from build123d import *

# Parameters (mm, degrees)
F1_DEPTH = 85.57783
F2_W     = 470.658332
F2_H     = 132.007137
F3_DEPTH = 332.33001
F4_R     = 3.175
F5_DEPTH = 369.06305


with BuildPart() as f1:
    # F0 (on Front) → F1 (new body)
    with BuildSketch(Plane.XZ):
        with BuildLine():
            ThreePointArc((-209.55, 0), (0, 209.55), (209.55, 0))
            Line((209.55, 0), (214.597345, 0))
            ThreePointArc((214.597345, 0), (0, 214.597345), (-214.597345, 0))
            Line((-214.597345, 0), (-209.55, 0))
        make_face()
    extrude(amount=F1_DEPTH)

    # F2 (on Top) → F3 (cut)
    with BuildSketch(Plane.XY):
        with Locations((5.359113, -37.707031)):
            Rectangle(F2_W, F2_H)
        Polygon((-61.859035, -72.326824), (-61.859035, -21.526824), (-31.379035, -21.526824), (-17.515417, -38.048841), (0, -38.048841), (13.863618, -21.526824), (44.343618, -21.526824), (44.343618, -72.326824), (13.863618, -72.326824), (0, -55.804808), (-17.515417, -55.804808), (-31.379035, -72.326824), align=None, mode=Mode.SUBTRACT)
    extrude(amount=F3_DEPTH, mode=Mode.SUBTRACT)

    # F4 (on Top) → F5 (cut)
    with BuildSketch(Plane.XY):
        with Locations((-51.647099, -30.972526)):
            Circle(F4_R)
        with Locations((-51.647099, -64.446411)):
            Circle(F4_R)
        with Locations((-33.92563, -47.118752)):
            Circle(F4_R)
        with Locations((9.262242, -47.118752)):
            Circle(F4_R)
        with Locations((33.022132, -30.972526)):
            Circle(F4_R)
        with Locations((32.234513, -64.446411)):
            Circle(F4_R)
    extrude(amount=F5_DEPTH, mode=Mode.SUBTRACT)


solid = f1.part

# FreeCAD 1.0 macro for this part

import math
import FreeCAD as App
import Part
import Sketcher
Q = App.Units.Quantity

doc = App.newDocument("Part")
body = doc.addObject("PartDesign::Body", "Body")

# Sketch on XZ plane
sketch1 = body.newObject("Sketcher::SketchObject", "Sketch")
sketch1.AttachmentSupport = (doc.getObject("XZ_Plane"), [""])
sketch1.MapMode = "FlatFace"
sketch1.addGeometry(Part.ArcOfCircle(Part.Circle(App.Vector(0, 0, 0), App.Vector(0, 0, 1), 210), math.radians(0), math.radians(180)), False)
sketch1.addGeometry(Part.LineSegment(App.Vector(210, 0, 0), App.Vector(215, 0, 0)), False)
sketch1.addGeometry(Part.ArcOfCircle(Part.Circle(App.Vector(0, 0, 0), App.Vector(0, 0, 1), 215), math.radians(0), math.radians(180)), False)
sketch1.addGeometry(Part.LineSegment(App.Vector(-215, 0, 0), App.Vector(-210, 0, 0)), False)
sketch1.addConstraint(Sketcher.Constraint("Coincident", 0, 1, 1, 1))
sketch1.addConstraint(Sketcher.Constraint("Coincident", 1, 2, 2, 1))
sketch1.addConstraint(Sketcher.Constraint("Coincident", 2, 2, 3, 1))
sketch1.addConstraint(Sketcher.Constraint("Coincident", 3, 2, 0, 2))
sketch1.addConstraint(Sketcher.Constraint("Horizontal", 1))
sketch1.addConstraint(Sketcher.Constraint("Horizontal", 3))
sketch1.addConstraint(Sketcher.Constraint("Coincident", 0, 3, -1, 1))
sketch1.addConstraint(Sketcher.Constraint("Coincident", 2, 3, -1, 1))
sketch1.addConstraint(Sketcher.Constraint("PointOnObject", 0, 1, -1))
sketch1.addConstraint(Sketcher.Constraint("PointOnObject", 2, 2, -1))
sketch1.addConstraint(Sketcher.Constraint("Radius", 0, Q("8.25 in")))
sketch1.addConstraint(Sketcher.Constraint("Radius", 2, Q("214.597345 mm")))
pad1 = body.newObject("PartDesign::Pad", "Pad")
pad1.Profile = sketch1
pad1.Length = 85.57783

# Sketch on XY plane
sketch2 = body.newObject("Sketcher::SketchObject", "Sketch001")
sketch2.AttachmentSupport = (doc.getObject("XY_Plane"), [""])
sketch2.MapMode = "FlatFace"
sketch2.addGeometry(Part.LineSegment(App.Vector(-230, 28, 0), App.Vector(-230, -104, 0)), False)
sketch2.addGeometry(Part.LineSegment(App.Vector(-230, -104, 0), App.Vector(241, -104, 0)), False)
sketch2.addGeometry(Part.LineSegment(App.Vector(241, -104, 0), App.Vector(241, 28, 0)), False)
sketch2.addGeometry(Part.LineSegment(App.Vector(241, 28, 0), App.Vector(-230, 28, 0)), False)
sketch2.addGeometry(Part.LineSegment(App.Vector(-31, -72, 0), App.Vector(-62, -72, 0)), False)
sketch2.addGeometry(Part.LineSegment(App.Vector(-62, -72, 0), App.Vector(-62, -22, 0)), False)
sketch2.addGeometry(Part.LineSegment(App.Vector(-62, -22, 0), App.Vector(-31, -22, 0)), False)
sketch2.addGeometry(Part.LineSegment(App.Vector(-31, -22, 0), App.Vector(-18, -38, 0)), False)
sketch2.addGeometry(Part.LineSegment(App.Vector(-18, -38, 0), App.Vector(0, -38, 0)), False)
sketch2.addGeometry(Part.LineSegment(App.Vector(0, -38, 0), App.Vector(14, -22, 0)), False)
sketch2.addGeometry(Part.LineSegment(App.Vector(14, -22, 0), App.Vector(44, -22, 0)), False)
sketch2.addGeometry(Part.LineSegment(App.Vector(44, -22, 0), App.Vector(44, -72, 0)), False)
sketch2.addGeometry(Part.LineSegment(App.Vector(44, -72, 0), App.Vector(14, -72, 0)), False)
sketch2.addGeometry(Part.LineSegment(App.Vector(14, -72, 0), App.Vector(0, -56, 0)), False)
sketch2.addGeometry(Part.LineSegment(App.Vector(0, -56, 0), App.Vector(-18, -56, 0)), False)
sketch2.addGeometry(Part.LineSegment(App.Vector(-18, -56, 0), App.Vector(-31, -72, 0)), False)
sketch2.addConstraint(Sketcher.Constraint("Coincident", 0, 2, 1, 1))
sketch2.addConstraint(Sketcher.Constraint("Coincident", 1, 2, 2, 1))
sketch2.addConstraint(Sketcher.Constraint("Coincident", 2, 2, 3, 1))
sketch2.addConstraint(Sketcher.Constraint("Coincident", 3, 2, 0, 1))
sketch2.addConstraint(Sketcher.Constraint("Coincident", 4, 2, 5, 1))
sketch2.addConstraint(Sketcher.Constraint("Coincident", 5, 2, 6, 1))
sketch2.addConstraint(Sketcher.Constraint("Coincident", 6, 2, 7, 1))
sketch2.addConstraint(Sketcher.Constraint("Coincident", 7, 2, 8, 1))
sketch2.addConstraint(Sketcher.Constraint("Coincident", 8, 2, 9, 1))
sketch2.addConstraint(Sketcher.Constraint("Coincident", 9, 2, 10, 1))
sketch2.addConstraint(Sketcher.Constraint("Coincident", 10, 2, 11, 1))
sketch2.addConstraint(Sketcher.Constraint("Coincident", 11, 2, 12, 1))
sketch2.addConstraint(Sketcher.Constraint("Coincident", 12, 2, 13, 1))
sketch2.addConstraint(Sketcher.Constraint("Coincident", 13, 2, 14, 1))
sketch2.addConstraint(Sketcher.Constraint("Coincident", 14, 2, 15, 1))
sketch2.addConstraint(Sketcher.Constraint("Coincident", 15, 2, 4, 1))
sketch2.addConstraint(Sketcher.Constraint("Vertical", 0))
sketch2.addConstraint(Sketcher.Constraint("Horizontal", 1))
sketch2.addConstraint(Sketcher.Constraint("Vertical", 2))
sketch2.addConstraint(Sketcher.Constraint("Horizontal", 3))
sketch2.addConstraint(Sketcher.Constraint("Horizontal", 4))
sketch2.addConstraint(Sketcher.Constraint("Vertical", 5))
sketch2.addConstraint(Sketcher.Constraint("Horizontal", 6))
sketch2.addConstraint(Sketcher.Constraint("Horizontal", 8))
sketch2.addConstraint(Sketcher.Constraint("Horizontal", 10))
sketch2.addConstraint(Sketcher.Constraint("Vertical", 11))
sketch2.addConstraint(Sketcher.Constraint("Horizontal", 12))
sketch2.addConstraint(Sketcher.Constraint("Horizontal", 14))
sketch2.addConstraint(Sketcher.Constraint("PointOnObject", 8, 2, -2))
sketch2.addConstraint(Sketcher.Constraint("PointOnObject", 13, 2, -2))
sketch2.addConstraint(Sketcher.Constraint("Parallel", 7, 13))
sketch2.addConstraint(Sketcher.Constraint("Parallel", 9, 15))
sketch2.addConstraint(Sketcher.Constraint("Horizontal", 6, 2, 9, 2))
sketch2.addConstraint(Sketcher.Constraint("Horizontal", 4, 2, 11, 2))
sketch2.addConstraint(Sketcher.Constraint("Vertical", 9, 2, 12, 2))
sketch2.addConstraint(Sketcher.Constraint("Vertical", 7, 2, 14, 2))
sketch2.addConstraint(Sketcher.Constraint("Vertical", 6, 2, 15, 2))
sketch2.addConstraint(Sketcher.Constraint("Equal", 6, 10))
sketch2.addConstraint(Sketcher.Constraint("DistanceY", 5, 1, 5, 2, Q("2 in")))
sketch2.addConstraint(Sketcher.Constraint("DistanceX", 4, 2, 4, 1, Q("1.2 in")))
sketch2.addConstraint(Sketcher.Constraint("Angle", 7, Q("-50.000001 deg")))
sketch2.addConstraint(Sketcher.Constraint("DistanceX", 1, 1, 1, 2, Q("470.658332 mm")))
sketch2.addConstraint(Sketcher.Constraint("DistanceY", 0, 2, -1, 1, Q("103.7106 mm")))
sketch2.addConstraint(Sketcher.Constraint("Distance", 7, Q("21.567961 mm")))
sketch2.addConstraint(Sketcher.Constraint("DistanceX", 8, 1, 8, 2, Q("17.515417 mm")))
sketch2.addConstraint(Sketcher.Constraint("DistanceY", 0, 2, 0, 1, Q("132.007137 mm")))
sketch2.addConstraint(Sketcher.Constraint("DistanceX", -1, 1, 1, 2, Q("240.688279 mm")))
sketch2.addConstraint(Sketcher.Constraint("DistanceY", 7, 2, -1, 1, Q("38.048841 mm")))
pocket1 = body.newObject("PartDesign::Pocket", "Pocket")
pocket1.Profile = sketch2
pocket1.Length = 332.33001
pocket1.Reversed = True

# Sketch on XY plane
sketch3 = body.newObject("Sketcher::SketchObject", "Sketch002")
sketch3.AttachmentSupport = (doc.getObject("XY_Plane"), [""])
sketch3.MapMode = "FlatFace"
sketch3.addGeometry(Part.Circle(App.Vector(-51.6, -31, 0), App.Vector(0, 0, 1), 3.2), False)
sketch3.addGeometry(Part.Circle(App.Vector(-51.6, -64.4, 0), App.Vector(0, 0, 1), 3.2), False)
sketch3.addGeometry(Part.Circle(App.Vector(-33.9, -47.1, 0), App.Vector(0, 0, 1), 3.2), False)
sketch3.addGeometry(Part.Circle(App.Vector(9.3, -47.1, 0), App.Vector(0, 0, 1), 3.2), False)
sketch3.addGeometry(Part.Circle(App.Vector(33, -31, 0), App.Vector(0, 0, 1), 3.2), False)
sketch3.addGeometry(Part.Circle(App.Vector(32.2, -64.4, 0), App.Vector(0, 0, 1), 3.2), False)
sketch3.addConstraint(Sketcher.Constraint("Equal", 0, 1))
sketch3.addConstraint(Sketcher.Constraint("Equal", 1, 2))
sketch3.addConstraint(Sketcher.Constraint("Equal", 2, 3))
sketch3.addConstraint(Sketcher.Constraint("Equal", 3, 4))
sketch3.addConstraint(Sketcher.Constraint("Equal", 4, 5))
sketch3.addConstraint(Sketcher.Constraint("Horizontal", 2, 3, 3, 3))
sketch3.addConstraint(Sketcher.Constraint("Horizontal", 0, 3, 4, 3))
sketch3.addConstraint(Sketcher.Constraint("Horizontal", 1, 3, 5, 3))
sketch3.addConstraint(Sketcher.Constraint("Vertical", 0, 3, 1, 3))
sketch3.addConstraint(Sketcher.Constraint("Diameter", 0, Q("0.25 in")))
sketch3.addConstraint(Sketcher.Constraint("DistanceX", 0, 3, -1, 1, Q("51.647099 mm")))
sketch3.addConstraint(Sketcher.Constraint("DistanceY", 1, 3, -1, 1, Q("64.446411 mm")))
sketch3.addConstraint(Sketcher.Constraint("DistanceX", 2, 3, -1, 1, Q("33.92563 mm")))
sketch3.addConstraint(Sketcher.Constraint("DistanceY", 1, 3, 2, 3, Q("17.327659 mm")))
sketch3.addConstraint(Sketcher.Constraint("DistanceX", 0, 3, 3, 3, Q("60.909341 mm")))
sketch3.addConstraint(Sketcher.Constraint("DistanceX", 3, 3, 4, 3, Q("23.75989 mm")))
sketch3.addConstraint(Sketcher.Constraint("DistanceX", 3, 3, 5, 3, Q("22.972271 mm")))
sketch3.addConstraint(Sketcher.Constraint("DistanceY", 0, 3, -1, 1, Q("30.972526 mm")))
pocket2 = body.newObject("PartDesign::Pocket", "Pocket001")
pocket2.Profile = sketch3
pocket2.Length = 369.06305
pocket2.Reversed = True

doc.recompute()
